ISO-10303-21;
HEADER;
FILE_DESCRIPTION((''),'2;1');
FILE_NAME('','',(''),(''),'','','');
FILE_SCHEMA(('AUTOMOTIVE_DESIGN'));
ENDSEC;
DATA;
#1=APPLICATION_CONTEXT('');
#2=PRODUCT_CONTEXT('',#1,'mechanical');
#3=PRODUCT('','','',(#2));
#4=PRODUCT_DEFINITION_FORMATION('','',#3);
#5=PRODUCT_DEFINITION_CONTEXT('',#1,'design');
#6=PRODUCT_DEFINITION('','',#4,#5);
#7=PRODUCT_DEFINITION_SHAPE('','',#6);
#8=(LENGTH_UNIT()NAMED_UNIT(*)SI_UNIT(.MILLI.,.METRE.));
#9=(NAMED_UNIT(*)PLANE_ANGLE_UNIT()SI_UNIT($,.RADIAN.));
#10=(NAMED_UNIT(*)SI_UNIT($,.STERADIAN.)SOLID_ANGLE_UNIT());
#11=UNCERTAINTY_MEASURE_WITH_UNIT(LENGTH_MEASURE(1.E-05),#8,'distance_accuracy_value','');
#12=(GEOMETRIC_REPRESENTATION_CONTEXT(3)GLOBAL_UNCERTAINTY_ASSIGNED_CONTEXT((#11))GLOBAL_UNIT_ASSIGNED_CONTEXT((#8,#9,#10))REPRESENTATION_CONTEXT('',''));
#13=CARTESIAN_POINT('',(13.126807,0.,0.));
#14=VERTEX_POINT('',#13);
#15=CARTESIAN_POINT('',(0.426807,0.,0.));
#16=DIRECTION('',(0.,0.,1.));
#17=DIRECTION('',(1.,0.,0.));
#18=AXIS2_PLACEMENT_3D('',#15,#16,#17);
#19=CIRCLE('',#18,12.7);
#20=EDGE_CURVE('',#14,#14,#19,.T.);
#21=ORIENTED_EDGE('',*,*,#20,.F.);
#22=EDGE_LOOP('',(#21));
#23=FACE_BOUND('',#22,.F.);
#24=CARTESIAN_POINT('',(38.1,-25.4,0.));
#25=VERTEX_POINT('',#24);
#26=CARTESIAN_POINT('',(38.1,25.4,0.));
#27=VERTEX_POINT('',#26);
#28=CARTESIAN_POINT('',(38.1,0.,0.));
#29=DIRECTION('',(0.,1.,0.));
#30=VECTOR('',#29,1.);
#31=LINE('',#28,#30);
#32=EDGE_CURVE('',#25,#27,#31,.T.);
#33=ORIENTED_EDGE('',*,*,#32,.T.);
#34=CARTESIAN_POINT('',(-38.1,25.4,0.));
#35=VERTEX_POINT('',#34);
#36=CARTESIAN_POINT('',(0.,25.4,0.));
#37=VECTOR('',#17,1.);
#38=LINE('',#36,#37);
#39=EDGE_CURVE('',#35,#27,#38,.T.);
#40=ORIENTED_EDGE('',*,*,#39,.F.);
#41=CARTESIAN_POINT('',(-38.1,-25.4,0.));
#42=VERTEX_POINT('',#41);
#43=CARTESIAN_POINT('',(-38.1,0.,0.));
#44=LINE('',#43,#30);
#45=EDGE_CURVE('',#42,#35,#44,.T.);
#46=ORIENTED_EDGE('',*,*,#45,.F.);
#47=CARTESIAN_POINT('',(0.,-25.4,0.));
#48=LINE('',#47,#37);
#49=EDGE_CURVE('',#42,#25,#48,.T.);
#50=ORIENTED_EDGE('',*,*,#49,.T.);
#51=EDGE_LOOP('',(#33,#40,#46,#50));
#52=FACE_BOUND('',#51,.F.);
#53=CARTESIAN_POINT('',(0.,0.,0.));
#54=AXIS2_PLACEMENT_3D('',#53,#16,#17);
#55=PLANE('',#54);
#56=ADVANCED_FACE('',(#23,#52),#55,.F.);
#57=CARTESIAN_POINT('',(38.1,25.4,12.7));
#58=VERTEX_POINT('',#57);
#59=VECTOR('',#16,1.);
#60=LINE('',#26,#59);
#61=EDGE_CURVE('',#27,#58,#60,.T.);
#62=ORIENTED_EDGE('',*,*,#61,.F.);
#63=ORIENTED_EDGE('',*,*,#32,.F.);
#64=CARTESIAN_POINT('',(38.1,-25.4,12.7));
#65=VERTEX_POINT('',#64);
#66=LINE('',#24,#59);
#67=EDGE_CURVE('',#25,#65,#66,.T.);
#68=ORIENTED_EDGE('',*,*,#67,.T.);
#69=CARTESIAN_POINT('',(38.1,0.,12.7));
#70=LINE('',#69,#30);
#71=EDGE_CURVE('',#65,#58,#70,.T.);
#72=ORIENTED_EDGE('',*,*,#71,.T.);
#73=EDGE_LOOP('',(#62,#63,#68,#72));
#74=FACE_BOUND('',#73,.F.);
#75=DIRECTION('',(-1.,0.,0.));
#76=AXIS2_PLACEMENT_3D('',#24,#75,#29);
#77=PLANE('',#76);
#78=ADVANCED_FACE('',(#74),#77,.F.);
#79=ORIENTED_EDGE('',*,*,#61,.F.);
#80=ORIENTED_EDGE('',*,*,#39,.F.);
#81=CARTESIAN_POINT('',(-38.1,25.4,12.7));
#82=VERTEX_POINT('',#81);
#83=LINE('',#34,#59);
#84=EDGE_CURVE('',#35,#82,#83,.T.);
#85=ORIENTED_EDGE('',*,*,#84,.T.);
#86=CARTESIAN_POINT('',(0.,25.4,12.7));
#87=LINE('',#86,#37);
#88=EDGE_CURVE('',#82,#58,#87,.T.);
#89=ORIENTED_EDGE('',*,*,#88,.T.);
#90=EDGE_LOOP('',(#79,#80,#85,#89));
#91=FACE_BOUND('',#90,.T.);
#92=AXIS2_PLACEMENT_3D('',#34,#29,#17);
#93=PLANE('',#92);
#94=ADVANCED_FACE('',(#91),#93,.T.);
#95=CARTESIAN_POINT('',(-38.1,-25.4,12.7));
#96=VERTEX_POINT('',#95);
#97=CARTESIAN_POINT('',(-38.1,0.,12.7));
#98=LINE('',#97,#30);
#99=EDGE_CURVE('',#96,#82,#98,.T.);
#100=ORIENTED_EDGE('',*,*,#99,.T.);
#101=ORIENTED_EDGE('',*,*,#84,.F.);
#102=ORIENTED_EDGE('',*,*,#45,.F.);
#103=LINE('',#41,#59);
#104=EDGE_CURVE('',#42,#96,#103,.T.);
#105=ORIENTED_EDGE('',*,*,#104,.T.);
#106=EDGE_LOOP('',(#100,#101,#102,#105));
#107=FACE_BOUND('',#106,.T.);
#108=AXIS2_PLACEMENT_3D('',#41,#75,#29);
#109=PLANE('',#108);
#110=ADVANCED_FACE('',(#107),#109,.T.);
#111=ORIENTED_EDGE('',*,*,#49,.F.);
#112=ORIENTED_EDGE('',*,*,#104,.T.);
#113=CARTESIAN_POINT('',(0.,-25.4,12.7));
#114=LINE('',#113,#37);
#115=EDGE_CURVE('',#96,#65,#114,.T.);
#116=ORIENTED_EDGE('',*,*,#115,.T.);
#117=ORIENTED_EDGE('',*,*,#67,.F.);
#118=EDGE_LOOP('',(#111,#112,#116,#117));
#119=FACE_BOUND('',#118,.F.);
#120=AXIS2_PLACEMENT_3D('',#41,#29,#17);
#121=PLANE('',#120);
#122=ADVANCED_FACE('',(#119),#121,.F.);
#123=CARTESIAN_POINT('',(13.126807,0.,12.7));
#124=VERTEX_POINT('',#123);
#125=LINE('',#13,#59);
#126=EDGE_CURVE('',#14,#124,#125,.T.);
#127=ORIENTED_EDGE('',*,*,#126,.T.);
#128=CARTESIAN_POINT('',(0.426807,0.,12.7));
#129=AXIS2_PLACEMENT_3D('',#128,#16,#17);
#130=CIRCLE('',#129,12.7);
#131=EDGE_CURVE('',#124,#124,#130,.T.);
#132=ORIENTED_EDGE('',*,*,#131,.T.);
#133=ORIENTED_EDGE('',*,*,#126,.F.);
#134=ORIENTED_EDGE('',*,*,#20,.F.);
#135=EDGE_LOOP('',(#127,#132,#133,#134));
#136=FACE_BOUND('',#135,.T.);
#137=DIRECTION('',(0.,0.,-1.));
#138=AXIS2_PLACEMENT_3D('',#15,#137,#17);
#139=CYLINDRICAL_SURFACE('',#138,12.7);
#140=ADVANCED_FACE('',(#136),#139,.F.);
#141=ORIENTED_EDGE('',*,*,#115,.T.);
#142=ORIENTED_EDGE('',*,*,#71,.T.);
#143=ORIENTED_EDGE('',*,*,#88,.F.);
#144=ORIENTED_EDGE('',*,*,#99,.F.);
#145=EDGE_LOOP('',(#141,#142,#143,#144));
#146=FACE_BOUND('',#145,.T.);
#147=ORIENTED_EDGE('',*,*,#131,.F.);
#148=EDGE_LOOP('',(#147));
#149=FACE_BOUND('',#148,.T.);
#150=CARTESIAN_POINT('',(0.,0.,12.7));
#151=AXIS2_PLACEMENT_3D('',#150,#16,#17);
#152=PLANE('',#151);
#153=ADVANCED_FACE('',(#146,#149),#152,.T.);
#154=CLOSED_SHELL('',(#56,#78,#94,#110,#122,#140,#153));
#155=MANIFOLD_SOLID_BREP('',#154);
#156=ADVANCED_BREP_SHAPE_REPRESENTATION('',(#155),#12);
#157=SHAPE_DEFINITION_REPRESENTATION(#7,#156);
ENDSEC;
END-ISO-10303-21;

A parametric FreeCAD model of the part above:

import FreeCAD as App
import Part
import Sketcher

V = App.Vector
Q = App.Units.Quantity


def add_polygon(sketch, points):
    """Adds a closed chain of lines whose ends are joined by coincident constraints."""
    first, n = sketch.GeometryCount, len(points)
    for a, b in zip(points, points[1:] + points[:1]):
        sketch.addGeometry(Part.LineSegment(App.Vector(*a, 0), App.Vector(*b, 0)), False)
    for i in range(n):
        sketch.addConstraint(Sketcher.Constraint("Coincident", first + i, 2, first + (i + 1) % n, 1))

doc = App.newDocument("Part")
body = doc.addObject("PartDesign::Body", "Body")

sketch1 = body.newObject("Sketcher::SketchObject", "Sketch")
sketch1.AttachmentSupport = (doc.getObject("XY_Plane"), [""])
sketch1.MapMode = "FlatFace"
add_polygon(sketch1, [(-38, 25), (-38, -25), (38, -25), (38, 25)])
sketch1.addGeometry(Part.Circle(V(0, 0, 0), V(0, 0, 1), 13), False)
sketch1.addConstraint([
    Sketcher.Constraint("Vertical", 0),
    Sketcher.Constraint("Horizontal", 1),
    Sketcher.Constraint("Vertical", 2),
    Sketcher.Constraint("Horizontal", 3),
    Sketcher.Constraint("Symmetric", 0, 2, 2, 2, -1, 1),
    Sketcher.Constraint("PointOnObject", 4, 3, -1),
    Sketcher.Constraint("Diameter", 4, Q("1 in")),
    Sketcher.Constraint("DistanceX", 1, 1, 1, 2, Q("3 in")),
    Sketcher.Constraint("DistanceY", 0, 2, 0, 1, Q("2 in")),
    Sketcher.Constraint("DistanceX", -1, 1, 4, 3, Q("0.426807 mm")),
])
pad1 = body.newObject("PartDesign::Pad", "Pad")
pad1.Profile = sketch1
pad1.Length = Q("0.5 in")

doc.recompute()
